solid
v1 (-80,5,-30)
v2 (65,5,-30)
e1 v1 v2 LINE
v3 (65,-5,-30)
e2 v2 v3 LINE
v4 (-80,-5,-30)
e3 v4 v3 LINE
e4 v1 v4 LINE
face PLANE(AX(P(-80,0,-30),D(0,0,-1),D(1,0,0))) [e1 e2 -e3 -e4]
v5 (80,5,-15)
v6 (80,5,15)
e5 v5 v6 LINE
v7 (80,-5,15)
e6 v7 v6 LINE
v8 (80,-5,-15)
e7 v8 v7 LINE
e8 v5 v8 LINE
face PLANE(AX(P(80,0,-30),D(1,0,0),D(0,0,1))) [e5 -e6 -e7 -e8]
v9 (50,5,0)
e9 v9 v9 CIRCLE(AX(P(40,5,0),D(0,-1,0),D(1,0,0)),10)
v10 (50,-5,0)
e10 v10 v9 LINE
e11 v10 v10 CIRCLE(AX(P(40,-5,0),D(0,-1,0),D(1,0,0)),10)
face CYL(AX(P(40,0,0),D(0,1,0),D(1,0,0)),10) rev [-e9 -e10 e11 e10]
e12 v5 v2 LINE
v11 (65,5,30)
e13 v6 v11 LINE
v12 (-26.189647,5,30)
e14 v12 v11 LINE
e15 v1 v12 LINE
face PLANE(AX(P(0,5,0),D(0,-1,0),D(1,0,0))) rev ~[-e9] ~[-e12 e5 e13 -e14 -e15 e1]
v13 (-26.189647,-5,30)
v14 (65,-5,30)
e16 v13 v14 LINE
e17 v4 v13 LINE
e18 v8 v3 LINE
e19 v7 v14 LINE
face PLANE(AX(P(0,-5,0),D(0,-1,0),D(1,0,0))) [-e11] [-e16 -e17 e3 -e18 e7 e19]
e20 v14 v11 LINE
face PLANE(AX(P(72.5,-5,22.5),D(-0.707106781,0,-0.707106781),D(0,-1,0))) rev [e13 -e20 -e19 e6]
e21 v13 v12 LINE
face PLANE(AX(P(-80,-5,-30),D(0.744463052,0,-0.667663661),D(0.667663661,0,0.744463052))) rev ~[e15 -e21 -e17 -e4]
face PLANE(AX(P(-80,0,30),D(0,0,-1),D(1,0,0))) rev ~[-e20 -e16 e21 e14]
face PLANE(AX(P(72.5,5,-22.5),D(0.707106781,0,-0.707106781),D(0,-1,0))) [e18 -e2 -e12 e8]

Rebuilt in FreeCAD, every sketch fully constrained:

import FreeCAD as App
import Part
import Sketcher


def edges_at(feature, points):
    """Names of the edges that pass closest to the given points."""
    edges = feature.Shape.Edges
    near = lambda p: min(range(len(edges)), key=lambda i: edges[i].distToShape(Part.Vertex(*p))[0])
    return sorted({f"Edge{near(p) + 1}" for p in points})


def add_polygon(sketch, points):
    """Adds a closed chain of lines whose ends are joined by coincident constraints."""
    first, n = sketch.GeometryCount, len(points)
    for a, b in zip(points, points[1:] + points[:1]):
        sketch.addGeometry(Part.LineSegment(App.Vector(*a, 0), App.Vector(*b, 0)), False)
    for i in range(n):
        sketch.addConstraint(Sketcher.Constraint("Coincident", first + i, 2, first + (i + 1) % n, 1))

doc = App.newDocument("Part")
params = doc.addObject("Spreadsheet::Sheet", "Params")
for row, (alias, value) in enumerate([
    ("sketch1_diameter", "20 mm"),
    ("sketch1_width", "160 mm"),
    ("sketch1_height", "60 mm"),
    ("pad1_length", "10 mm"),
    ("chamfer_size", "15 mm"),
    ("sketch2_height", "60 mm"),
    ("pocket1_length", "25 mm"),
], start=1):
    params.set(f"A{row}", alias)
    params.set(f"B{row}", "=" + value)
    params.setAlias(f"B{row}", alias)

body = doc.addObject("PartDesign::Body", "Body")

sketch1 = body.newObject("Sketcher::SketchObject", "Sketch")
sketch1.AttachmentSupport = (doc.getObject("XZ_Plane"), [""])
sketch1.MapMode = "FlatFace"
add_polygon(sketch1, [(-80, 30), (-80, -30), (80, -30), (80, 30)])
sketch1.addGeometry(Part.Circle(App.Vector(40, 0, 0), App.Vector(0, 0, 1), 10), False)
sketch1.addConstraint([
    Sketcher.Constraint("Vertical", 0),
    Sketcher.Constraint("Horizontal", 1),
    Sketcher.Constraint("Vertical", 2),
    Sketcher.Constraint("Horizontal", 3),
    Sketcher.Constraint("Symmetric", 0, 2, 2, 2, -1, 1),
    Sketcher.Constraint("PointOnObject", 4, 3, -1),
    Sketcher.Constraint("Diameter", 4, 20.0),
    Sketcher.Constraint("DistanceX", 1, 1, 1, 2, 160.0),
    Sketcher.Constraint("DistanceY", 0, 2, 0, 1, 60.0),
    Sketcher.Constraint("DistanceX", -1, 1, 4, 3, 40.0),
])
sketch1.setExpression("Constraints[10]", "Params.sketch1_diameter")
sketch1.setExpression("Constraints[11]", "Params.sketch1_width")
sketch1.setExpression("Constraints[12]", "Params.sketch1_height")
pad1 = body.newObject("PartDesign::Pad", "Pad")
pad1.Profile = sketch1
pad1.setExpression("Length", "Params.pad1_length")
pad1.Midplane = True
doc.recompute()

chamfer = body.newObject("PartDesign::Chamfer", "Chamfer")
chamfer.Base = (pad1, edges_at(pad1, [(80, 0, 30), (80, 0, -30)]))
chamfer.setExpression("Size", "Params.chamfer_size")

sketch2 = body.newObject("Sketcher::SketchObject", "Sketch001")
sketch2.AttachmentSupport = (doc.getObject("XZ_Plane"), [""])
sketch2.MapMode = "FlatFace"
sketch2.AttachmentOffset = App.Placement(App.Vector(0, 0, 5), App.Rotation())
add_polygon(sketch2, [(-80, 30), (-80, -30), (-26, 30)])
sketch2.addConstraint([
    Sketcher.Constraint("Vertical", 0),
    Sketcher.Constraint("Horizontal", 2),
    Sketcher.Constraint("DistanceY", 0, 2, 0, 1, 60.0),
    Sketcher.Constraint("DistanceX", 0, 2, -1, 1, 80.0),
    Sketcher.Constraint("DistanceY", 0, 2, -1, 1, 30.0),
    Sketcher.Constraint("Distance", 1, 80.595),
])
sketch2.setExpression("Constraints[5]", "Params.sketch2_height")
pocket1 = body.newObject("PartDesign::Pocket", "Pocket")
pocket1.Profile = sketch2
pocket1.setExpression("Length", "Params.pocket1_length")

doc.recompute()
